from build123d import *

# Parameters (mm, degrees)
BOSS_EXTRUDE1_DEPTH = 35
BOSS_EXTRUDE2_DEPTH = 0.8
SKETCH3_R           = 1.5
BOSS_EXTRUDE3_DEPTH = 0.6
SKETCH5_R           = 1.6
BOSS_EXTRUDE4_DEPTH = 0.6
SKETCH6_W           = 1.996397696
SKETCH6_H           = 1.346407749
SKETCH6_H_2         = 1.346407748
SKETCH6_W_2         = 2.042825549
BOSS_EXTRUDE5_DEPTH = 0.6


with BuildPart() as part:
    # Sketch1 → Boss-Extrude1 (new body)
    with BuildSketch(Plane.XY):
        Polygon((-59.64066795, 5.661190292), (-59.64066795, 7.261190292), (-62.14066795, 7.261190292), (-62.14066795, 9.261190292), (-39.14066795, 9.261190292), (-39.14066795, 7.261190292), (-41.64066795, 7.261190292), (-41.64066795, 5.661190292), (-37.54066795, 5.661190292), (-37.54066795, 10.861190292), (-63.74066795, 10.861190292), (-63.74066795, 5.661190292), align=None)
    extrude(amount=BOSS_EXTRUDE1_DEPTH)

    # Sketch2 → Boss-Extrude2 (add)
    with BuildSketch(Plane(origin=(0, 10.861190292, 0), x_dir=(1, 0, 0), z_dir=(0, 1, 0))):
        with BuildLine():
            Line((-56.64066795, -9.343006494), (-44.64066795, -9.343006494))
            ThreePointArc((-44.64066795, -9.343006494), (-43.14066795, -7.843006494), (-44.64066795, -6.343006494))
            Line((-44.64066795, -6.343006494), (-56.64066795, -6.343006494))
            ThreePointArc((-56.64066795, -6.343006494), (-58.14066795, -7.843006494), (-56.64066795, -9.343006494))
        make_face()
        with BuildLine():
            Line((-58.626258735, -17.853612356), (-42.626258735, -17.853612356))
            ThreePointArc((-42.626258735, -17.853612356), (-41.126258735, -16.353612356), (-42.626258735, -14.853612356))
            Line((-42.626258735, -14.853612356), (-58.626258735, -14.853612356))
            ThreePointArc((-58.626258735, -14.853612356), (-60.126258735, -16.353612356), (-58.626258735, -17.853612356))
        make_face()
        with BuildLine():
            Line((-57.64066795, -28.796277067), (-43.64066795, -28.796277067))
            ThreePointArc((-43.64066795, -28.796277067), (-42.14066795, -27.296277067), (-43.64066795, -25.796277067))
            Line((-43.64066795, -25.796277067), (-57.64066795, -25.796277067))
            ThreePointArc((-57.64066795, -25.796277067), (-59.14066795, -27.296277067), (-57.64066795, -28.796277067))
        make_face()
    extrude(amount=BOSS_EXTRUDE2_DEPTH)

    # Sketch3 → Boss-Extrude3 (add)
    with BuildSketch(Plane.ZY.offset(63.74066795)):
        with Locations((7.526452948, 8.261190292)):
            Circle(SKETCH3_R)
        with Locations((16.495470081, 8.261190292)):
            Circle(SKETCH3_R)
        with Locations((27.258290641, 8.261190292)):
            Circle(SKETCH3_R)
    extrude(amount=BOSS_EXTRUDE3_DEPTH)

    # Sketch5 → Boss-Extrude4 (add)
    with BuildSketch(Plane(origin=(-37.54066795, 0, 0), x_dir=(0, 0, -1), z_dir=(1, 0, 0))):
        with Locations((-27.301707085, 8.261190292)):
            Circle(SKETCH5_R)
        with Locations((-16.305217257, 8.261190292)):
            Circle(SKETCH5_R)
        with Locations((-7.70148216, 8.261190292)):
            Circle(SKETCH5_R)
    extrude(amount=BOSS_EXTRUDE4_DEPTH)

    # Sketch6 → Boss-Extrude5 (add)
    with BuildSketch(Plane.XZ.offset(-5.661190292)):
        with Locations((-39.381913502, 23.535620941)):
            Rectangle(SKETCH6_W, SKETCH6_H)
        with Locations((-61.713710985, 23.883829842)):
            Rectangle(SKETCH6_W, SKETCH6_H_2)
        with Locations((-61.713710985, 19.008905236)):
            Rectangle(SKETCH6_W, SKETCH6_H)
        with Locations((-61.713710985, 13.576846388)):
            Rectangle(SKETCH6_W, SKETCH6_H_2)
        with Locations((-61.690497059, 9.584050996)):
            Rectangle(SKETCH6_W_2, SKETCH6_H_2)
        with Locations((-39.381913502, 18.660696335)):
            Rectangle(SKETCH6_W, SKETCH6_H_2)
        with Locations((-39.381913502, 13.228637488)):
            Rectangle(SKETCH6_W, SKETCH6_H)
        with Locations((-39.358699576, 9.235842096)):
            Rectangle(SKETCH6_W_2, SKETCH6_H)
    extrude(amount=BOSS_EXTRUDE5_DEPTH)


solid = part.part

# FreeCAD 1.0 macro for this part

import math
import FreeCAD as App
import Part
import Sketcher
from FreeCAD import Vector
Q = App.Units.Quantity


def add_polygon(sketch, points):
    """Adds a closed chain of lines whose ends are joined by coincident constraints."""
    first, n = sketch.GeometryCount, len(points)
    for a, b in zip(points, points[1:] + points[:1]):
        sketch.addGeometry(Part.LineSegment(App.Vector(*a, 0), App.Vector(*b, 0)), False)
    for i in range(n):
        sketch.addConstraint(Sketcher.Constraint("Coincident", first + i, 2, first + (i + 1) % n, 1))

doc = App.newDocument("Part")
body = doc.addObject("PartDesign::Body", "Body")

# Sketch on XY plane
sketch1 = body.newObject("Sketcher::SketchObject", "Sketch")
sketch1.AttachmentSupport = (doc.getObject("XY_Plane"), [""])
sketch1.MapMode = "FlatFace"
add_polygon(sketch1, [(-59.640668, 5.66119), (-59.640668, 7.26119), (-62.140668, 7.26119), (-62.140668, 9.26119), (-39.140668, 9.26119), (-39.140668, 7.26119), (-41.640668, 7.26119), (-41.640668, 5.66119), (-37.540668, 5.66119), (-37.540668, 10.86119), (-63.740668, 10.86119), (-63.740668, 5.66119)])  # lines 0-11
sketch1.addConstraint(Sketcher.Constraint("Vertical", 0))
sketch1.addConstraint(Sketcher.Constraint("Horizontal", 1))
sketch1.addConstraint(Sketcher.Constraint("Vertical", 2))
sketch1.addConstraint(Sketcher.Constraint("Horizontal", 3))
sketch1.addConstraint(Sketcher.Constraint("Vertical", 4))
sketch1.addConstraint(Sketcher.Constraint("Horizontal", 5))
sketch1.addConstraint(Sketcher.Constraint("Vertical", 6))
sketch1.addConstraint(Sketcher.Constraint("Horizontal", 7))
sketch1.addConstraint(Sketcher.Constraint("Vertical", 8))
sketch1.addConstraint(Sketcher.Constraint("Horizontal", 9))
sketch1.addConstraint(Sketcher.Constraint("Vertical", 10))
sketch1.addConstraint(Sketcher.Constraint("Horizontal", 11))
sketch1.addConstraint(Sketcher.Constraint("Horizontal", 1, 2, 4, 2))
sketch1.addConstraint(Sketcher.Constraint("Horizontal", 7, 2, 10, 2))
sketch1.addConstraint(Sketcher.Constraint("Equal", 1, 5))
sketch1.addConstraint(Sketcher.Constraint("Equal", 7, 11))
sketch1.addConstraint(Sketcher.Constraint("DistanceX", 3, 1, 3, 2, Q("23 mm")))
sketch1.addConstraint(Sketcher.Constraint("DistanceY", 2, 1, 2, 2, Q("2 mm")))
sketch1.addConstraint(Sketcher.Constraint("DistanceX", 1, 2, 1, 1, Q("2.5 mm")))
sketch1.addConstraint(Sketcher.Constraint("DistanceX", 7, 1, 7, 2, Q("4.1 mm")))
sketch1.addConstraint(Sketcher.Constraint("DistanceY", 0, 1, 0, 2, Q("1.6 mm")))
sketch1.addConstraint(Sketcher.Constraint("DistanceY", 8, 1, 8, 2, Q("5.2 mm")))
sketch1.addConstraint(Sketcher.Constraint("DistanceY", -1, 1, 0, 2, Q("7.26119 mm")))
sketch1.addConstraint(Sketcher.Constraint("DistanceX", 0, 2, -1, 1, Q("59.640668 mm")))
pad1 = body.newObject("PartDesign::Pad", "Pad")
pad1.Profile = sketch1
pad1.Length = 35

# Sketch on XZ plane
sketch2 = body.newObject("Sketcher::SketchObject", "Sketch001")
sketch2.AttachmentSupport = (doc.getObject("XZ_Plane"), [""])
sketch2.MapMode = "FlatFace"
sketch2.AttachmentOffset = App.Placement(Vector(0, 0, -10.86119), App.Rotation())
sketch2.addGeometry(Part.LineSegment(Vector(-56.640668, 9.343006, 0), Vector(-44.640668, 9.343006, 0)), False)
sketch2.addGeometry(Part.ArcOfCircle(Part.Circle(Vector(-44.640668, 7.843006, 0), Vector(0, 0, 1), 1.5), math.radians(-90), math.radians(90)), False)
sketch2.addGeometry(Part.LineSegment(Vector(-44.640668, 6.343006, 0), Vector(-56.640668, 6.343006, 0)), False)
sketch2.addGeometry(Part.ArcOfCircle(Part.Circle(Vector(-56.640668, 7.843006, 0), Vector(0, 0, 1), 1.5), math.radians(90), math.radians(270)), False)
sketch2.addGeometry(Part.LineSegment(Vector(-58.626259, 17.853612, 0), Vector(-42.626259, 17.853612, 0)), False)
sketch2.addGeometry(Part.ArcOfCircle(Part.Circle(Vector(-42.626259, 16.353612, 0), Vector(0, 0, 1), 1.5), math.radians(-90), math.radians(90)), False)
sketch2.addGeometry(Part.LineSegment(Vector(-42.626259, 14.853612, 0), Vector(-58.626259, 14.853612, 0)), False)
sketch2.addGeometry(Part.ArcOfCircle(Part.Circle(Vector(-58.626259, 16.353612, 0), Vector(0, 0, 1), 1.5), math.radians(90), math.radians(270)), False)
sketch2.addGeometry(Part.LineSegment(Vector(-57.640668, 28.796277, 0), Vector(-43.640668, 28.796277, 0)), False)
sketch2.addGeometry(Part.ArcOfCircle(Part.Circle(Vector(-43.640668, 27.296277, 0), Vector(0, 0, 1), 1.5), math.radians(-90), math.radians(90)), False)
sketch2.addGeometry(Part.LineSegment(Vector(-43.640668, 25.796277, 0), Vector(-57.640668, 25.796277, 0)), False)
sketch2.addGeometry(Part.ArcOfCircle(Part.Circle(Vector(-57.640668, 27.296277, 0), Vector(0, 0, 1), 1.5), math.radians(90), math.radians(270)), False)
sketch2.addConstraint(Sketcher.Constraint("Tangent", 0, 2, 1, 2))
sketch2.addConstraint(Sketcher.Constraint("Tangent", 1, 1, 2, 1))
sketch2.addConstraint(Sketcher.Constraint("Tangent", 2, 2, 3, 2))
sketch2.addConstraint(Sketcher.Constraint("Tangent", 3, 1, 0, 1))
sketch2.addConstraint(Sketcher.Constraint("Tangent", 4, 2, 5, 2))
sketch2.addConstraint(Sketcher.Constraint("Tangent", 5, 1, 6, 1))
sketch2.addConstraint(Sketcher.Constraint("Tangent", 6, 2, 7, 2))
sketch2.addConstraint(Sketcher.Constraint("Tangent", 7, 1, 4, 1))
sketch2.addConstraint(Sketcher.Constraint("Tangent", 8, 2, 9, 2))
sketch2.addConstraint(Sketcher.Constraint("Tangent", 9, 1, 10, 1))
sketch2.addConstraint(Sketcher.Constraint("Tangent", 10, 2, 11, 2))
sketch2.addConstraint(Sketcher.Constraint("Tangent", 11, 1, 8, 1))
sketch2.addConstraint(Sketcher.Constraint("Horizontal", 0))
sketch2.addConstraint(Sketcher.Constraint("Horizontal", 2))
sketch2.addConstraint(Sketcher.Constraint("Horizontal", 4))
sketch2.addConstraint(Sketcher.Constraint("Horizontal", 6))
sketch2.addConstraint(Sketcher.Constraint("Horizontal", 8))
sketch2.addConstraint(Sketcher.Constraint("Horizontal", 10))
sketch2.addConstraint(Sketcher.Constraint("Equal", 3, 5))
sketch2.addConstraint(Sketcher.Constraint("Equal", 7, 9))
sketch2.addConstraint(Sketcher.Constraint("Radius", 1, Q("1.5 mm")))
sketch2.addConstraint(Sketcher.Constraint("DistanceX", 0, 1, 0, 2, Q("12 mm")))
sketch2.addConstraint(Sketcher.Constraint("DistanceX", 4, 1, 4, 2, Q("16 mm")))
sketch2.addConstraint(Sketcher.Constraint("DistanceX", 8, 1, 8, 2, Q("14 mm")))
sketch2.addConstraint(Sketcher.Constraint("DistanceX", 1, 3, 9, 3, Q("1 mm")))
sketch2.addConstraint(Sketcher.Constraint("DistanceX", 5, 3, -1, 1, Q("42.626259 mm")))
sketch2.addConstraint(Sketcher.Constraint("DistanceX", 1, 3, 5, 3, Q("2.014409 mm")))
sketch2.addConstraint(Sketcher.Constraint("DistanceY", 1, 3, 9, 3, Q("19.453271 mm")))
sketch2.addConstraint(Sketcher.Constraint("DistanceY", -1, 1, 1, 3, Q("7.843006 mm")))
sketch2.addConstraint(Sketcher.Constraint("DistanceY", -1, 1, 5, 3, Q("16.353612 mm")))
pad2 = body.newObject("PartDesign::Pad", "Pad001")
pad2.Profile = sketch2
pad2.Length = 0.8
pad2.Reversed = True

# Sketch on YZ plane
sketch3 = body.newObject("Sketcher::SketchObject", "Sketch002")
sketch3.AttachmentSupport = (doc.getObject("YZ_Plane"), [""])
sketch3.MapMode = "FlatFace"
sketch3.AttachmentOffset = App.Placement(Vector(0, 0, -63.740668), App.Rotation())
sketch3.addGeometry(Part.Circle(Vector(8.26119, 7.526453, 0), Vector(0, 0, 1), 1.5), False)
sketch3.addGeometry(Part.Circle(Vector(8.26119, 16.49547, 0), Vector(0, 0, 1), 1.5), False)
sketch3.addGeometry(Part.Circle(Vector(8.26119, 27.258291, 0), Vector(0, 0, 1), 1.5), False)
sketch3.addConstraint(Sketcher.Constraint("Equal", 0, 1))
sketch3.addConstraint(Sketcher.Constraint("Equal", 1, 2))
sketch3.addConstraint(Sketcher.Constraint("Vertical", 0, 3, 1, 3))
sketch3.addConstraint(Sketcher.Constraint("Vertical", 1, 3, 2, 3))
sketch3.addConstraint(Sketcher.Constraint("Diameter", 0, Q("3 mm")))
sketch3.addConstraint(Sketcher.Constraint("DistanceX", -1, 1, 0, 3, Q("8.26119 mm")))
sketch3.addConstraint(Sketcher.Constraint("DistanceY", -1, 1, 1, 3, Q("16.49547 mm")))
sketch3.addConstraint(Sketcher.Constraint("DistanceY", -1, 1, 2, 3, Q("27.258291 mm")))
sketch3.addConstraint(Sketcher.Constraint("DistanceY", -1, 1, 0, 3, Q("7.526453 mm")))
pad3 = body.newObject("PartDesign::Pad", "Pad002")
pad3.Profile = sketch3
pad3.Length = 0.6
pad3.Reversed = True

# Sketch on YZ plane
sketch4 = body.newObject("Sketcher::SketchObject", "Sketch003")
sketch4.AttachmentSupport = (doc.getObject("YZ_Plane"), [""])
sketch4.MapMode = "FlatFace"
sketch4.AttachmentOffset = App.Placement(Vector(0, 0, -37.540668), App.Rotation())
sketch4.addGeometry(Part.Circle(Vector(8.26119, 27.301707, 0), Vector(0, 0, 1), 1.6), False)
sketch4.addGeometry(Part.Circle(Vector(8.26119, 16.305217, 0), Vector(0, 0, 1), 1.6), False)
sketch4.addGeometry(Part.Circle(Vector(8.26119, 7.701482, 0), Vector(0, 0, 1), 1.6), False)
sketch4.addConstraint(Sketcher.Constraint("Equal", 0, 1))
sketch4.addConstraint(Sketcher.Constraint("Equal", 1, 2))
sketch4.addConstraint(Sketcher.Constraint("Vertical", 0, 3, 1, 3))
sketch4.addConstraint(Sketcher.Constraint("Vertical", 1, 3, 2, 3))
sketch4.addConstraint(Sketcher.Constraint("Diameter", 0, Q("3.2 mm")))
sketch4.addConstraint(Sketcher.Constraint("DistanceX", -1, 1, 0, 3, Q("8.26119 mm")))
sketch4.addConstraint(Sketcher.Constraint("DistanceY", 1, 3, 0, 3, Q("10.99649 mm")))
sketch4.addConstraint(Sketcher.Constraint("DistanceY", -1, 1, 0, 3, Q("27.301707 mm")))
sketch4.addConstraint(Sketcher.Constraint("DistanceY", -1, 1, 2, 3, Q("7.701482 mm")))
pad4 = body.newObject("PartDesign::Pad", "Pad003")
pad4.Profile = sketch4
pad4.Length = 0.6

# Sketch on XZ plane
sketch5 = body.newObject("Sketcher::SketchObject", "Sketch004")
sketch5.AttachmentSupport = (doc.getObject("XZ_Plane"), [""])
sketch5.MapMode = "FlatFace"
sketch5.AttachmentOffset = App.Placement(Vector(0, 0, -5.66119), App.Rotation())
add_polygon(sketch5, [(-40.380112, 24.208825), (-40.380112, 22.862417), (-38.383715, 22.862417), (-38.383715, 24.208825)])  # lines 0-3
add_polygon(sketch5, [(-62.71191, 24.557034), (-62.71191, 23.210626), (-60.715512, 23.210626), (-60.715512, 24.557034)])  # lines 4-7
add_polygon(sketch5, [(-62.71191, 19.682109), (-62.71191, 18.335701), (-60.715512, 18.335701), (-60.715512, 19.682109)])  # lines 8-11
add_polygon(sketch5, [(-62.71191, 14.25005), (-62.71191, 12.903643), (-60.715512, 12.903643), (-60.715512, 14.25005)])  # lines 12-15
add_polygon(sketch5, [(-62.71191, 10.257255), (-62.71191, 8.910847), (-60.669084, 8.910847), (-60.669084, 10.257255)])  # lines 16-19
add_polygon(sketch5, [(-40.380112, 19.3339), (-40.380112, 17.987492), (-38.383715, 17.987492), (-38.383715, 19.3339)])  # lines 20-23
add_polygon(sketch5, [(-40.380112, 13.901841), (-40.380112, 12.555434), (-38.383715, 12.555434), (-38.383715, 13.901841)])  # lines 24-27
add_polygon(sketch5, [(-40.380112, 9.909046), (-40.380112, 8.562638), (-38.337287, 8.562638), (-38.337287, 9.909046)])  # lines 28-31
sketch5.addConstraint(Sketcher.Constraint("Vertical", 0))
sketch5.addConstraint(Sketcher.Constraint("Horizontal", 1))
sketch5.addConstraint(Sketcher.Constraint("Vertical", 2))
sketch5.addConstraint(Sketcher.Constraint("Horizontal", 3))
sketch5.addConstraint(Sketcher.Constraint("Vertical", 4))
sketch5.addConstraint(Sketcher.Constraint("Horizontal", 5))
sketch5.addConstraint(Sketcher.Constraint("Vertical", 6))
sketch5.addConstraint(Sketcher.Constraint("Horizontal", 7))
sketch5.addConstraint(Sketcher.Constraint("Vertical", 8))
sketch5.addConstraint(Sketcher.Constraint("Horizontal", 9))
sketch5.addConstraint(Sketcher.Constraint("Vertical", 10))
sketch5.addConstraint(Sketcher.Constraint("Horizontal", 11))
sketch5.addConstraint(Sketcher.Constraint("Vertical", 12))
sketch5.addConstraint(Sketcher.Constraint("Horizontal", 13))
sketch5.addConstraint(Sketcher.Constraint("Vertical", 14))
sketch5.addConstraint(Sketcher.Constraint("Horizontal", 15))
sketch5.addConstraint(Sketcher.Constraint("Vertical", 16))
sketch5.addConstraint(Sketcher.Constraint("Horizontal", 17))
sketch5.addConstraint(Sketcher.Constraint("Vertical", 18))
sketch5.addConstraint(Sketcher.Constraint("Horizontal", 19))
sketch5.addConstraint(Sketcher.Constraint("Vertical", 20))
sketch5.addConstraint(Sketcher.Constraint("Horizontal", 21))
sketch5.addConstraint(Sketcher.Constraint("Vertical", 22))
sketch5.addConstraint(Sketcher.Constraint("Horizontal", 23))
sketch5.addConstraint(Sketcher.Constraint("Vertical", 24))
sketch5.addConstraint(Sketcher.Constraint("Horizontal", 25))
sketch5.addConstraint(Sketcher.Constraint("Vertical", 26))
sketch5.addConstraint(Sketcher.Constraint("Horizontal", 27))
sketch5.addConstraint(Sketcher.Constraint("Vertical", 28))
sketch5.addConstraint(Sketcher.Constraint("Horizontal", 29))
sketch5.addConstraint(Sketcher.Constraint("Vertical", 30))
sketch5.addConstraint(Sketcher.Constraint("Horizontal", 31))
sketch5.addConstraint(Sketcher.Constraint("Vertical", 7, 2, 8, 2))
sketch5.addConstraint(Sketcher.Constraint("Vertical", 6, 2, 9, 2))
sketch5.addConstraint(Sketcher.Constraint("Vertical", 11, 2, 12, 2))
sketch5.addConstraint(Sketcher.Constraint("Vertical", 10, 2, 13, 2))
sketch5.addConstraint(Sketcher.Constraint("Vertical", 15, 2, 16, 2))
sketch5.addConstraint(Sketcher.Constraint("Vertical", 3, 2, 20, 2))
sketch5.addConstraint(Sketcher.Constraint("Vertical", 2, 2, 21, 2))
sketch5.addConstraint(Sketcher.Constraint("Vertical", 23, 2, 24, 2))
sketch5.addConstraint(Sketcher.Constraint("Vertical", 22, 2, 25, 2))
sketch5.addConstraint(Sketcher.Constraint("Vertical", 27, 2, 28, 2))
sketch5.addConstraint(Sketcher.Constraint("Equal", 3, 5))
sketch5.addConstraint(Sketcher.Constraint("Equal", 19, 29))
sketch5.addConstraint(Sketcher.Constraint("Equal", 2, 4))
sketch5.addConstraint(Sketcher.Constraint("Equal", 6, 8))
sketch5.addConstraint(Sketcher.Constraint("Equal", 10, 12))
sketch5.addConstraint(Sketcher.Constraint("Equal", 14, 16))
sketch5.addConstraint(Sketcher.Constraint("Equal", 18, 20))
sketch5.addConstraint(Sketcher.Constraint("Equal", 22, 24))
sketch5.addConstraint(Sketcher.Constraint("Equal", 26, 28))
sketch5.addConstraint(Sketcher.Constraint("DistanceY", -1, 1, 8, 2, Q("18.335701 mm")))
sketch5.addConstraint(Sketcher.Constraint("DistanceY", -1, 1, 22, 2, Q("19.3339 mm")))
sketch5.addConstraint(Sketcher.Constraint("DistanceY", 4, 2, 3, 2, Q("0.998199 mm")))
sketch5.addConstraint(Sketcher.Constraint("DistanceX", 5, 2, 0, 2, Q("20.3354 mm")))
sketch5.addConstraint(Sketcher.Constraint("DistanceX", 1, 1, 1, 2, Q("1.996398 mm")))
sketch5.addConstraint(Sketcher.Constraint("DistanceX", 17, 1, 17, 2, Q("2.042826 mm")))
sketch5.addConstraint(Sketcher.Constraint("DistanceY", 0, 2, 0, 1, Q("1.346408 mm")))
sketch5.addConstraint(Sketcher.Constraint("DistanceX", 4, 2, -1, 1, Q("62.71191 mm")))
sketch5.addConstraint(Sketcher.Constraint("DistanceY", -1, 1, 14, 2, Q("14.25005 mm")))
sketch5.addConstraint(Sketcher.Constraint("DistanceY", -1, 1, 26, 2, Q("13.901841 mm")))
sketch5.addConstraint(Sketcher.Constraint("DistanceY", -1, 1, 28, 2, Q("8.562638 mm")))
sketch5.addConstraint(Sketcher.Constraint("DistanceY", -1, 1, 0, 2, Q("22.862417 mm")))
sketch5.addConstraint(Sketcher.Constraint("DistanceY", -1, 1, 16, 2, Q("8.910847 mm")))
pad5 = body.newObject("PartDesign::Pad", "Pad004")
pad5.Profile = sketch5
pad5.Length = 0.6

doc.recompute()
